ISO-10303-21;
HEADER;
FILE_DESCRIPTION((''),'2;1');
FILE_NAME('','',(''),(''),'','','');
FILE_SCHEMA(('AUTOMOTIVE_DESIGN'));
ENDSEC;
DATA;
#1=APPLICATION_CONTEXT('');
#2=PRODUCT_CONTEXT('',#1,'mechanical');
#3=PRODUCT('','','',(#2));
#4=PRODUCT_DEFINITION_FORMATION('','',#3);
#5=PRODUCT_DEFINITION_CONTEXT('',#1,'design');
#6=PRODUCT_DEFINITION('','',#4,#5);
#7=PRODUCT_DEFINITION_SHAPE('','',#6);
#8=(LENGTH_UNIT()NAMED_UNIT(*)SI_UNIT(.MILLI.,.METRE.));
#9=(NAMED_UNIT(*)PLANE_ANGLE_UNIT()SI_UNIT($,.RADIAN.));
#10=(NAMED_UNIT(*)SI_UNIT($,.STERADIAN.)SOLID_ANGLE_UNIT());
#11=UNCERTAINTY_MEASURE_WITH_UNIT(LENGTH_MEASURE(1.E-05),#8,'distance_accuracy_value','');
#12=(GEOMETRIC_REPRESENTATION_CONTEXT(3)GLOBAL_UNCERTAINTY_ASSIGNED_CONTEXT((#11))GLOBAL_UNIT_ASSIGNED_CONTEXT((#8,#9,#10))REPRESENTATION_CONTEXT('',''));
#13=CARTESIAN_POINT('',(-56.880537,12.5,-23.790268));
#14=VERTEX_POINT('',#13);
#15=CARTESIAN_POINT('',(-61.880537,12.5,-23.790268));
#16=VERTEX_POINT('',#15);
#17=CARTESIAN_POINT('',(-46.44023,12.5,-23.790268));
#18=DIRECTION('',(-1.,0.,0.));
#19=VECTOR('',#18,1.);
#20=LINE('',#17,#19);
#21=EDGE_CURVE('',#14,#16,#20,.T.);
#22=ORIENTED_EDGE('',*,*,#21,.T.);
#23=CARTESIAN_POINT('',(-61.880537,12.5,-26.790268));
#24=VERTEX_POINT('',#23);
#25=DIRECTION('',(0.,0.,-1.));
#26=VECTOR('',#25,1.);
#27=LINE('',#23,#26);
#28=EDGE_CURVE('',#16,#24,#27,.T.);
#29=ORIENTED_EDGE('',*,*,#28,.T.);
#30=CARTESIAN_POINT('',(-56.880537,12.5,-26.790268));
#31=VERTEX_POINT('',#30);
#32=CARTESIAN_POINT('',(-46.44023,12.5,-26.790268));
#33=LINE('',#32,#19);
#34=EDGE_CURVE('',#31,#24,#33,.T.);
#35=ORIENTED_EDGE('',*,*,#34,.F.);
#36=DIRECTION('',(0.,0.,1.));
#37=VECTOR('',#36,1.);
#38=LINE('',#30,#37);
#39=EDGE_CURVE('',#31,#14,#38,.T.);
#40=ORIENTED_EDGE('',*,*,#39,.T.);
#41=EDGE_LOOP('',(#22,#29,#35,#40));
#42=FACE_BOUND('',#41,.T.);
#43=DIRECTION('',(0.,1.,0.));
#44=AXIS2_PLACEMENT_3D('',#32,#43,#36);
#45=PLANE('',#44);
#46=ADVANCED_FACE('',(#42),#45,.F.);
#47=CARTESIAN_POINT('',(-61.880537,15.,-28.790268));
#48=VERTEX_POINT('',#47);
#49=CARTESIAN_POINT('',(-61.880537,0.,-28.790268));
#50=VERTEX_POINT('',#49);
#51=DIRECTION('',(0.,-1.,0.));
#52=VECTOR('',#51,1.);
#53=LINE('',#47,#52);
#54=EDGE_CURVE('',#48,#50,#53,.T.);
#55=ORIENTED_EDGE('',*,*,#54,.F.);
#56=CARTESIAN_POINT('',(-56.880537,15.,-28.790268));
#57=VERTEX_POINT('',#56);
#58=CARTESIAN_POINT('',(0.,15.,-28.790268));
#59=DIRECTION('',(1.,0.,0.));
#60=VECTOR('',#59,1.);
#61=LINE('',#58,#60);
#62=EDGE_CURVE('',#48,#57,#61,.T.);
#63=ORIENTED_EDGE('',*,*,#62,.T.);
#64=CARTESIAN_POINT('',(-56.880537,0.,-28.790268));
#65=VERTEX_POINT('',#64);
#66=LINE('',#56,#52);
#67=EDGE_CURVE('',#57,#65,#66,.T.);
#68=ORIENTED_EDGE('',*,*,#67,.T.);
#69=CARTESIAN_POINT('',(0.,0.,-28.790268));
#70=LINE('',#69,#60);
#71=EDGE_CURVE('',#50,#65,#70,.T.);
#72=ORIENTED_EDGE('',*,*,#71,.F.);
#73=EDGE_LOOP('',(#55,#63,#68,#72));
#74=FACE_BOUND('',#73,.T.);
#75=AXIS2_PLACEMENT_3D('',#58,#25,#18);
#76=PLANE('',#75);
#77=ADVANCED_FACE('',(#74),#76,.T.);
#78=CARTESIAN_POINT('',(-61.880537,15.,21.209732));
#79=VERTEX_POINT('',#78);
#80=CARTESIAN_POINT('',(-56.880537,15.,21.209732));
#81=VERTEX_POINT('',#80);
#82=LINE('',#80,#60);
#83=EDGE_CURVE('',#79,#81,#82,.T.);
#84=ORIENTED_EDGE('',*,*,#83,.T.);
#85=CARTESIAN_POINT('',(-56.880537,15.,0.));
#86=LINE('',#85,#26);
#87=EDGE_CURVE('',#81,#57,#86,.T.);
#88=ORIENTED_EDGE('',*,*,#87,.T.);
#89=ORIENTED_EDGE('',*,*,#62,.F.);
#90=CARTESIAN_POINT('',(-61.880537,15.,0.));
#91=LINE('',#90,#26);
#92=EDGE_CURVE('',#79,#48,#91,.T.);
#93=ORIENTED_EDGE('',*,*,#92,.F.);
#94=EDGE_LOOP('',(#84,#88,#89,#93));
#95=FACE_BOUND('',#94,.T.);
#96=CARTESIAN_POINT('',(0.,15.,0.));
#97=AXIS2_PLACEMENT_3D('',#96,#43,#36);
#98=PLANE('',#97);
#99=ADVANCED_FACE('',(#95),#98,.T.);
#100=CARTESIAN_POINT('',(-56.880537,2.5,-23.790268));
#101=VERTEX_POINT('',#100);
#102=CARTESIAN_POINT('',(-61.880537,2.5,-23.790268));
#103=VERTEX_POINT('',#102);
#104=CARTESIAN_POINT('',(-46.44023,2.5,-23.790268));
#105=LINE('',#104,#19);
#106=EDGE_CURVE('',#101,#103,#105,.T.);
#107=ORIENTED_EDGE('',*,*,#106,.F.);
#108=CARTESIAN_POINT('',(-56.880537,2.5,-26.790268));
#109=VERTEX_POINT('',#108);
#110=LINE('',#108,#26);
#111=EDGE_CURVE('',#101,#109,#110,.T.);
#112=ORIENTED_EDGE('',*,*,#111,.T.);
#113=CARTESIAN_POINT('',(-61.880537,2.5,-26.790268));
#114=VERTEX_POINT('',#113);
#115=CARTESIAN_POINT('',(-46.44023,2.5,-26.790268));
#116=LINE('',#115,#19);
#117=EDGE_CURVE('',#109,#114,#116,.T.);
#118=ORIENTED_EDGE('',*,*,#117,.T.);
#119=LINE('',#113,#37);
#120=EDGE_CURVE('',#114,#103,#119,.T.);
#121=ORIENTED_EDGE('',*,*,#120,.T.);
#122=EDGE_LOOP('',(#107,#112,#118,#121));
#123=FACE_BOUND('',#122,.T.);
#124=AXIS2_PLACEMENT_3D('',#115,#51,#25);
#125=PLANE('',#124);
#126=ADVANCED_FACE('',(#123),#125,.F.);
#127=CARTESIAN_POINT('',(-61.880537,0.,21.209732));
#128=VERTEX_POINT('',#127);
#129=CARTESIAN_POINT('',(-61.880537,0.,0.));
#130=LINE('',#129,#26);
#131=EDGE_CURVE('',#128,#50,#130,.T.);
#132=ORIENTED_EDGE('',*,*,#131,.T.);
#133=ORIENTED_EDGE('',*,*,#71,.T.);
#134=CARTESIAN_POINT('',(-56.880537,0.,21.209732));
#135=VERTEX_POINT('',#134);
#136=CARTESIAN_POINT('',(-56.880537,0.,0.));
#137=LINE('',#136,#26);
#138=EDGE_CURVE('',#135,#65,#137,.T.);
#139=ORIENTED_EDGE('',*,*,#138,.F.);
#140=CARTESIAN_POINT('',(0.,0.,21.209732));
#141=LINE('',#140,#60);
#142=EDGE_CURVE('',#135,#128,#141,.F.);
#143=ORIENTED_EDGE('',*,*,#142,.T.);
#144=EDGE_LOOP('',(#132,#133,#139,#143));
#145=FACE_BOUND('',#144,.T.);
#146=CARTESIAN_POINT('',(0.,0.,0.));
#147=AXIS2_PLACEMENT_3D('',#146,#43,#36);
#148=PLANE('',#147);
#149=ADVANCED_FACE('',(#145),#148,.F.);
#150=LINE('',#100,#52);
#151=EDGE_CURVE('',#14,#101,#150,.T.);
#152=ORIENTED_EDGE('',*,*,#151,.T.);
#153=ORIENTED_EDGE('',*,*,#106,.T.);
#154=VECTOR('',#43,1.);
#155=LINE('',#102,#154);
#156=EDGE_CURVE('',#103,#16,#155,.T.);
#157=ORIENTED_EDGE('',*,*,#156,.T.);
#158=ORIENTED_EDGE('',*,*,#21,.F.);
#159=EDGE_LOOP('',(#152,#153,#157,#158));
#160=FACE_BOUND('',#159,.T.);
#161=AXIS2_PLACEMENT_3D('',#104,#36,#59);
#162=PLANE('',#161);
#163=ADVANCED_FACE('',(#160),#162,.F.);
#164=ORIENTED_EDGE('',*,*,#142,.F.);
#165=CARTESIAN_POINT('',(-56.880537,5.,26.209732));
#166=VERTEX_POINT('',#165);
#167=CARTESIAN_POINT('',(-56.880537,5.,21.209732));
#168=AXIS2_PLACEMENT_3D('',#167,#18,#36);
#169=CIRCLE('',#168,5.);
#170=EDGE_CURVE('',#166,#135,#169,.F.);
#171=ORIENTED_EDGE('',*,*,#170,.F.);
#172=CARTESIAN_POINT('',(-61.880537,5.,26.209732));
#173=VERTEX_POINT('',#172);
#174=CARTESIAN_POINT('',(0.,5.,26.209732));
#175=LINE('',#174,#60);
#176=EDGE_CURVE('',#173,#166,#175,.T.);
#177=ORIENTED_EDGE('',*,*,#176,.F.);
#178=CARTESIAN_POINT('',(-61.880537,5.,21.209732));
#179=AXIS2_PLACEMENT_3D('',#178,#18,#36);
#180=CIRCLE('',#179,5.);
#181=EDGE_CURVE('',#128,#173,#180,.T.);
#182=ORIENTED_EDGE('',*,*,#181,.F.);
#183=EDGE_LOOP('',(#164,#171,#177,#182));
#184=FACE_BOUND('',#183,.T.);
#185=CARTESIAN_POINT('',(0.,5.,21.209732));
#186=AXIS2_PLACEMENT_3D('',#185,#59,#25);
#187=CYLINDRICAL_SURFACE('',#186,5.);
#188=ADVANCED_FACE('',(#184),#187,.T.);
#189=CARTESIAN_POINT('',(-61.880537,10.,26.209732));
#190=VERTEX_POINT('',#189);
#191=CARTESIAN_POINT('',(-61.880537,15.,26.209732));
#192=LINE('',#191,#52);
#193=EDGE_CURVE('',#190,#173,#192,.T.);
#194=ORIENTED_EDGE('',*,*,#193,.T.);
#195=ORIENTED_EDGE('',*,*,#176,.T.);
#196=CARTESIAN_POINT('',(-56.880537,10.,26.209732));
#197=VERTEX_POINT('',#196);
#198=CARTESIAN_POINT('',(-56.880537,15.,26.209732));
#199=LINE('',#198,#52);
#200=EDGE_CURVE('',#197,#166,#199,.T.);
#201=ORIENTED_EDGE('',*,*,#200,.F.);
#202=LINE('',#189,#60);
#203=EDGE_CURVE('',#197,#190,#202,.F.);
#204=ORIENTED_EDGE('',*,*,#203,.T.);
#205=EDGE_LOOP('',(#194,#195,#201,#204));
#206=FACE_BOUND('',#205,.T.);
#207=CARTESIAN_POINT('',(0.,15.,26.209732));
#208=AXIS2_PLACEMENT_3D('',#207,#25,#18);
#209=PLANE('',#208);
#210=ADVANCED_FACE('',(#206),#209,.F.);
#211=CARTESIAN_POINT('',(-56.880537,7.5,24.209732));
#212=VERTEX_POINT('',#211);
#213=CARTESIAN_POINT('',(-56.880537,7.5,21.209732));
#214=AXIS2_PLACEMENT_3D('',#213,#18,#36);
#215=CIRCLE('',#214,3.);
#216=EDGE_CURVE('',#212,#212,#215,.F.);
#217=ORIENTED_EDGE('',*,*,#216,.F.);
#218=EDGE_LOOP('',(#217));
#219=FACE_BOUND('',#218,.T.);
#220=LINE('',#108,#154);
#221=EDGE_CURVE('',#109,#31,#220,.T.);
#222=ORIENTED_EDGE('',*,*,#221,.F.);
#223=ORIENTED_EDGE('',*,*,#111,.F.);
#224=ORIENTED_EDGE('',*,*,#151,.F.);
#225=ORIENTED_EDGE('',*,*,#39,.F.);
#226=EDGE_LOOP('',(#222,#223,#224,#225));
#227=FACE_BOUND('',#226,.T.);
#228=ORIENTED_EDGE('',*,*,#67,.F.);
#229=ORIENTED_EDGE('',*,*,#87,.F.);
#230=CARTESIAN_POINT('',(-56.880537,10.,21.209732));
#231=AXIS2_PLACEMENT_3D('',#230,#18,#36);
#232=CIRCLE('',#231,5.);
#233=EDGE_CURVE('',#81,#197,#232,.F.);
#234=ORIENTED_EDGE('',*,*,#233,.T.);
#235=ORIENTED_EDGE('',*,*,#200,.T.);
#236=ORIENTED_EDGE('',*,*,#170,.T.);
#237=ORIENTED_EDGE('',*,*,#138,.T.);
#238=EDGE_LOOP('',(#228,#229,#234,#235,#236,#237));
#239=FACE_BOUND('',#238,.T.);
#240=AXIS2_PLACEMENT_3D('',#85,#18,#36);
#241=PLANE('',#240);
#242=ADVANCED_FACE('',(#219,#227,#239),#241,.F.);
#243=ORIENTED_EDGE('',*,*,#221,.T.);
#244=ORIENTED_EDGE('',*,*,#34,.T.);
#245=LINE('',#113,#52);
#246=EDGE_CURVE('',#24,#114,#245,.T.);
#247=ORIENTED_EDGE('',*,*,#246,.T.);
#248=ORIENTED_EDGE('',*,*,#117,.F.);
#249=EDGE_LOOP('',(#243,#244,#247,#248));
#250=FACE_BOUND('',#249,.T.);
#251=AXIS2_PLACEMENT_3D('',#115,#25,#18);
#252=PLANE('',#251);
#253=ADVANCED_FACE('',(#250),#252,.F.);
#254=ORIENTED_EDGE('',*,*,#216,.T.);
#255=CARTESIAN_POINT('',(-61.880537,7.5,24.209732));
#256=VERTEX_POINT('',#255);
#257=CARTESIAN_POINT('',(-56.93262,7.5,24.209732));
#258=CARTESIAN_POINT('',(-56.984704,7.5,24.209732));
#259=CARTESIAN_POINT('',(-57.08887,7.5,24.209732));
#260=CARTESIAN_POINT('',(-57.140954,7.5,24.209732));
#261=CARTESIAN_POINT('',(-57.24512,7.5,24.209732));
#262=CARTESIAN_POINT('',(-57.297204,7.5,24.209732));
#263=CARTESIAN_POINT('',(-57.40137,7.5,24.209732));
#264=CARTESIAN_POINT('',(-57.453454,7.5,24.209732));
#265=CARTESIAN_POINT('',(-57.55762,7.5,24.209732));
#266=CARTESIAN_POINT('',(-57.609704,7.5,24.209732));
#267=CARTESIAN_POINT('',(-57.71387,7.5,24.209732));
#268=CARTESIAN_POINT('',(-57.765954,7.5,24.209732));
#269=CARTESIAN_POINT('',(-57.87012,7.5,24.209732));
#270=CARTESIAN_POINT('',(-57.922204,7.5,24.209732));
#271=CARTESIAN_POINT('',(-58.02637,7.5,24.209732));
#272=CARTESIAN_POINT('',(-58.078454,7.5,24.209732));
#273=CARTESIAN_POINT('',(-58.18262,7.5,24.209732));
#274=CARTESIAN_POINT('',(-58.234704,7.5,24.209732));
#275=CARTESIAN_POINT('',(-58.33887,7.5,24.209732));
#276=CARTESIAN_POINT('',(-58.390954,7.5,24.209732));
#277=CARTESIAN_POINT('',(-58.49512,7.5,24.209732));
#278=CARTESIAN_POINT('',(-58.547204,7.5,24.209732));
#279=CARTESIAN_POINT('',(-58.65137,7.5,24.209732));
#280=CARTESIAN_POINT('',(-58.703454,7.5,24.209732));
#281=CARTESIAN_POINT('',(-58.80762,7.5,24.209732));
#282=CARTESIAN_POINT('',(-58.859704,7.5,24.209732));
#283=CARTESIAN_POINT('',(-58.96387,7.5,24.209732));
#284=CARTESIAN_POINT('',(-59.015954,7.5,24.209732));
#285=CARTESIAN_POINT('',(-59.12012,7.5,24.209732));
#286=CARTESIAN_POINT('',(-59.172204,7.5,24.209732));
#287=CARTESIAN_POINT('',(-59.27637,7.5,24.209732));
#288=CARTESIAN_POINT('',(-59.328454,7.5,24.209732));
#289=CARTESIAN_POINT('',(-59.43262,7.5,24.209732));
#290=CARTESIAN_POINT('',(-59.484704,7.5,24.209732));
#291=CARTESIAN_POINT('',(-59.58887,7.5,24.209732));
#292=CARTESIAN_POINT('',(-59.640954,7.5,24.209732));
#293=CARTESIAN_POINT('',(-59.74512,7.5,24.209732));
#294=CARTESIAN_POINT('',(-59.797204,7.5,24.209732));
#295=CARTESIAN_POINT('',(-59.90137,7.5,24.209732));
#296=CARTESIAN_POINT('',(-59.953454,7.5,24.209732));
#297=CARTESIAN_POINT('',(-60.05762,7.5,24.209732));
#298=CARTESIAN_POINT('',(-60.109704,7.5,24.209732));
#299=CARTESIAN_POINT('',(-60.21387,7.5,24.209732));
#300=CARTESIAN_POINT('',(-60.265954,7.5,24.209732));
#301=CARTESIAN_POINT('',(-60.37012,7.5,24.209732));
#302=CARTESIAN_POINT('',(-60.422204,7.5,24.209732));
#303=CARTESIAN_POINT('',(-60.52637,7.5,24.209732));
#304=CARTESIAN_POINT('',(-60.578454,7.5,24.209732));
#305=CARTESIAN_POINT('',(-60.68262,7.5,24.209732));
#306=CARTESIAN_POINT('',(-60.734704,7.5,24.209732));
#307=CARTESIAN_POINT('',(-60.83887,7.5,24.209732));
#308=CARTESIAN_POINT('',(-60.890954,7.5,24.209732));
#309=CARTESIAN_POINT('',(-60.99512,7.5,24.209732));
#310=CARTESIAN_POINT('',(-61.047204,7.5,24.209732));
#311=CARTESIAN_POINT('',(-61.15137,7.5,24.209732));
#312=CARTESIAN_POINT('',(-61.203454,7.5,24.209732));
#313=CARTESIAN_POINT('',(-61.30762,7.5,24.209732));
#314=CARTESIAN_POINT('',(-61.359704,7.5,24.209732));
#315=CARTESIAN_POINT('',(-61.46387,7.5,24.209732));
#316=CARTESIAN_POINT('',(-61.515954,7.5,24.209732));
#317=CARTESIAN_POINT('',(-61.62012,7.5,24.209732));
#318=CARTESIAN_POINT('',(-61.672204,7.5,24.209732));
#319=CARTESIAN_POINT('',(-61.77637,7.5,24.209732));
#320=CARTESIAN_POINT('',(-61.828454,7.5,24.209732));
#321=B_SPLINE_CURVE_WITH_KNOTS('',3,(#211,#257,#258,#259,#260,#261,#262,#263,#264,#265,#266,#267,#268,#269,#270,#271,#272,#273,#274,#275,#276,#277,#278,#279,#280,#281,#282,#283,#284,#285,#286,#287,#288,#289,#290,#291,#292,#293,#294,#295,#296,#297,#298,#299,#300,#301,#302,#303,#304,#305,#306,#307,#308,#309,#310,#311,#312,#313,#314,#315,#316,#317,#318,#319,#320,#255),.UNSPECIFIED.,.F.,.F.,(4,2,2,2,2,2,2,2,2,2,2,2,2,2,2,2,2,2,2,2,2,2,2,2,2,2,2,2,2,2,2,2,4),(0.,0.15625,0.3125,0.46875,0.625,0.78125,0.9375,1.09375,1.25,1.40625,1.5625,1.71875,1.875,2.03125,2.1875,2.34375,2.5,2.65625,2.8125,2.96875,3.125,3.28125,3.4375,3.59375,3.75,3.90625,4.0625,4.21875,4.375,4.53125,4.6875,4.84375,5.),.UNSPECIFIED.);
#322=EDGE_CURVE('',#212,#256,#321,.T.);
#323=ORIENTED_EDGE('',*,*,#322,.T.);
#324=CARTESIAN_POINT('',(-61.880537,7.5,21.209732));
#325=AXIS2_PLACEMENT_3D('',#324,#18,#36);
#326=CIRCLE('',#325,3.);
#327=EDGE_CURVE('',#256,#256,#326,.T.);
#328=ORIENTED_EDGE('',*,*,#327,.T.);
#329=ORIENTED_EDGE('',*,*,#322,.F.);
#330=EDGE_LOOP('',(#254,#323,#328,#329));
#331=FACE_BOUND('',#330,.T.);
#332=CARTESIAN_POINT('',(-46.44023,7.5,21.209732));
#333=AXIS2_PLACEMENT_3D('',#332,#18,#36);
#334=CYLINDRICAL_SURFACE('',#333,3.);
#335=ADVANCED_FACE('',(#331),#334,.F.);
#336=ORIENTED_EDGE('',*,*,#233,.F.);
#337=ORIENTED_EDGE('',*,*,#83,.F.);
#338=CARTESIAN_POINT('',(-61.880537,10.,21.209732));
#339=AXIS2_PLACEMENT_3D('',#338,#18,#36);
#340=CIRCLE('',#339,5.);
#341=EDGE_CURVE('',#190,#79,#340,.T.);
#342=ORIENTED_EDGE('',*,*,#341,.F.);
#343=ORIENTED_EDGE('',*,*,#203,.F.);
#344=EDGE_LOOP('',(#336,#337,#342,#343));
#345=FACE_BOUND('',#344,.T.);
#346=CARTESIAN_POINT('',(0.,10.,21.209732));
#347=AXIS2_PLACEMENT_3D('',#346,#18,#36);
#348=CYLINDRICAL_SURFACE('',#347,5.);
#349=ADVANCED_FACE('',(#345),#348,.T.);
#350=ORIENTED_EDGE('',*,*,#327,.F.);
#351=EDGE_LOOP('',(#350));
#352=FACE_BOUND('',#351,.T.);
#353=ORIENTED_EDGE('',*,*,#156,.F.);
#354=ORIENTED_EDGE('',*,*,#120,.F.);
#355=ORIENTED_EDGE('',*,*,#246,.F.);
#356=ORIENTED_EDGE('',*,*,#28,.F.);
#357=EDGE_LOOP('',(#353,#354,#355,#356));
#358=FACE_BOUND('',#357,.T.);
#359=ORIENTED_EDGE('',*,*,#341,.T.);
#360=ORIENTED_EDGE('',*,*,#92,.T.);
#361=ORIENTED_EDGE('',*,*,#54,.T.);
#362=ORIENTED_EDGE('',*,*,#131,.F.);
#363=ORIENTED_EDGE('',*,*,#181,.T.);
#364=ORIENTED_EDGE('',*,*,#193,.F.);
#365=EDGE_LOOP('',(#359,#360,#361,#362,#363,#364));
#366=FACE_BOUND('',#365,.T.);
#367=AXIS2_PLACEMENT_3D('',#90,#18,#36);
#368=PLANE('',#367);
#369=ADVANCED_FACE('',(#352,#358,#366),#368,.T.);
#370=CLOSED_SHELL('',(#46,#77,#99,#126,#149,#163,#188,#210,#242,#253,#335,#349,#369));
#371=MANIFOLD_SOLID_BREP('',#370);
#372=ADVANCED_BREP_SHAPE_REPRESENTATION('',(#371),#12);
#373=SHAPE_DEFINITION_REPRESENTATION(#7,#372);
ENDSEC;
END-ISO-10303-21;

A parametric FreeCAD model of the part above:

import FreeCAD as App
import Part
import Sketcher

V = App.Vector


def edges_at(feature, points):
    """Names of the edges that pass closest to the given points."""
    edges = feature.Shape.Edges
    near = lambda p: min(range(len(edges)), key=lambda i: edges[i].distToShape(Part.Vertex(*p))[0])
    return sorted({f"Edge{near(p) + 1}" for p in points})


def add_polygon(sketch, points):
    """Adds a closed chain of lines whose ends are joined by coincident constraints."""
    first, n = sketch.GeometryCount, len(points)
    for a, b in zip(points, points[1:] + points[:1]):
        sketch.addGeometry(Part.LineSegment(App.Vector(*a, 0), App.Vector(*b, 0)), False)
    for i in range(n):
        sketch.addConstraint(Sketcher.Constraint("Coincident", first + i, 2, first + (i + 1) % n, 1))

doc = App.newDocument("Part")
body = doc.addObject("PartDesign::Body", "Body")

# Sketch on XZ plane
sketch1 = body.newObject("Sketcher::SketchObject", "Sketch")
sketch1.AttachmentSupport = (doc.getObject("XZ_Plane"), [""])
sketch1.MapMode = "FlatFace"
add_polygon(sketch1, [(-61.880537, -28.790268), (-61.880537, 26.209732), (-56.880537, 26.209732), (-56.880537, -28.790268)])  # lines 0-3
sketch1.addConstraint([
    Sketcher.Constraint("Vertical", 0),
    Sketcher.Constraint("Horizontal", 1),
    Sketcher.Constraint("Vertical", 2),
    Sketcher.Constraint("Horizontal", 3),
    Sketcher.Constraint("DistanceX", 1, 1, 1, 2, 5.0),
    Sketcher.Constraint("DistanceY", 0, 1, 0, 2, 55.0),
    Sketcher.Constraint("DistanceY", -1, 1, 0, 2, 26.209732),
    Sketcher.Constraint("DistanceX", 0, 2, -1, 1, 61.880537),
])
pad1 = body.newObject("PartDesign::Pad", "Pad")
pad1.Profile = sketch1
pad1.Length = 15
pad1.Reversed = True

# Sketch on YZ plane
sketch2 = body.newObject("Sketcher::SketchObject", "Sketch001")
sketch2.AttachmentSupport = (doc.getObject("YZ_Plane"), [""])
sketch2.MapMode = "FlatFace"
sketch2.AttachmentOffset = App.Placement(V(0, 0, -61.880537), App.Rotation())
sketch2.addGeometry(Part.Circle(V(7.5, 21.209732, 0), V(0, 0, 1), 3), False)  # 0
add_polygon(sketch2, [(12.5, -26.790268), (2.5, -26.790268), (2.5, -23.790268), (12.5, -23.790268)])  # lines 1-4
sketch2.addConstraint([
    Sketcher.Constraint("Horizontal", 1),
    Sketcher.Constraint("Vertical", 2),
    Sketcher.Constraint("Horizontal", 3),
    Sketcher.Constraint("Vertical", 4),
    Sketcher.Constraint("Diameter", 0, 6.0),
    Sketcher.Constraint("DistanceX", 1, 2, 1, 1, 10.0),
    Sketcher.Constraint("DistanceY", 2, 1, 2, 2, 3.0),
    Sketcher.Constraint("DistanceX", 1, 2, 0, 3, 5.0),
    Sketcher.Constraint("DistanceY", 1, 2, 0, 3, 48.0),
    Sketcher.Constraint("DistanceX", -1, 1, 0, 3, 7.5),
    Sketcher.Constraint("DistanceY", -1, 1, 0, 3, 21.209732),
])
pocket1 = body.newObject("PartDesign::Pocket", "Pocket")
pocket1.Profile = sketch2
pocket1.Length = 5
pocket1.Reversed = True
doc.recompute()

fillet = body.newObject("PartDesign::Fillet", "Fillet")
fillet.Base = (pocket1, edges_at(pocket1, [(-59.381, 15, 26.21), (-59.381, 0, 26.21)]))
fillet.Radius = 5

doc.recompute()
